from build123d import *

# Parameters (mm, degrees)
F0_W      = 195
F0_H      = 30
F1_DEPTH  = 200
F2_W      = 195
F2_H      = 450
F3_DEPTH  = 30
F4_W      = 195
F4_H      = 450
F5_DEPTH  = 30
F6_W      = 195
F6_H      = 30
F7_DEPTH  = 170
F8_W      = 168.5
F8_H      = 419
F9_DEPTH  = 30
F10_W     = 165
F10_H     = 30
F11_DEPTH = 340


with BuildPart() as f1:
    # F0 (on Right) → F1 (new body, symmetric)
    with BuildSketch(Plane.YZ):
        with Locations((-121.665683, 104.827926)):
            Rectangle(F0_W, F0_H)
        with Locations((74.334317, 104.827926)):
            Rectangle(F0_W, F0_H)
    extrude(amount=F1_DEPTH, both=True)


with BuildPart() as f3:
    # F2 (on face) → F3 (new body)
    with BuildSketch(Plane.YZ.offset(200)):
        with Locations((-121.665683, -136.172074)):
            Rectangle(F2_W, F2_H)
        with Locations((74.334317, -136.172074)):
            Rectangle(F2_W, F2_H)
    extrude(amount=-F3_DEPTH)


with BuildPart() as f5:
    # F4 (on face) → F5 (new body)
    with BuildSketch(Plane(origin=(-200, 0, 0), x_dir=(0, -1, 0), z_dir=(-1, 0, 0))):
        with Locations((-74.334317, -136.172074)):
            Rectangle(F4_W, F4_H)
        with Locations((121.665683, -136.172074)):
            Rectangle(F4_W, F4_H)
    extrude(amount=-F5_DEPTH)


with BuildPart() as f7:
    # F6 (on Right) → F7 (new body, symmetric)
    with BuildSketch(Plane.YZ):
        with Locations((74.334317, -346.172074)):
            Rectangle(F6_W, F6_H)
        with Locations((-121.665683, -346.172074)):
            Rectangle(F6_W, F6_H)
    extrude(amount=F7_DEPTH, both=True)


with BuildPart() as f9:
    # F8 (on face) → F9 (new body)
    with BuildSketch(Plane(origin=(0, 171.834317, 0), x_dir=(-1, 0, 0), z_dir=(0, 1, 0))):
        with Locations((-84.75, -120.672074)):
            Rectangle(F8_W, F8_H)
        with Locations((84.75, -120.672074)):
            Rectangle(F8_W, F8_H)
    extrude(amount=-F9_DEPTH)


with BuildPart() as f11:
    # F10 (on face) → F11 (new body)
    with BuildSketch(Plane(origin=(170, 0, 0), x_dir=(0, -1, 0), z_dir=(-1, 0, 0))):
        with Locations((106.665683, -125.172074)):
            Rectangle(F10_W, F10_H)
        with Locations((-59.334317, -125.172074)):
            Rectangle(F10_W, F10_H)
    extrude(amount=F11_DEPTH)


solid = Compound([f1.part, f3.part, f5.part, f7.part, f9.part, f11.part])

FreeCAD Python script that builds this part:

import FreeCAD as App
import Part
import Sketcher

V = App.Vector

doc = App.newDocument("Part")
params = doc.addObject("Spreadsheet::Sheet", "Params")
for row, (alias, value) in enumerate([
    ("sketch1_width", "195 mm"),
    ("sketch1_height", "30 mm"),
    ("pad1_length", "400 mm"),
    ("sketch2_width", "195 mm"),
    ("sketch2_height", "450 mm"),
    ("pad2_length", "30 mm"),
    ("sketch3_width", "195 mm"),
    ("sketch3_height", "450 mm"),
    ("pad3_length", "30 mm"),
    ("sketch4_width", "195 mm"),
    ("sketch4_height", "30 mm"),
    ("pad4_length", "340 mm"),
    ("sketch5_height", "419 mm"),
    ("sketch5_width", "168.5 mm"),
    ("pad5_length", "30 mm"),
    ("sketch6_width", "165 mm"),
    ("sketch6_height", "30 mm"),
    ("pad6_length", "340 mm"),
], start=1):
    params.set(f"A{row}", alias)
    params.set(f"B{row}", "=" + value)
    params.setAlias(f"B{row}", alias)

body = doc.addObject("PartDesign::Body", "Body")
body.AllowCompound = True

# Sketch on YZ plane
sketch1 = body.newObject("Sketcher::SketchObject", "Sketch")
sketch1.AttachmentSupport = (doc.getObject("YZ_Plane"), [""])
sketch1.MapMode = "FlatFace"
sketch1.addGeometry(Part.LineSegment(V(-219, 120, 0), V(-219, 90, 0)), False)
sketch1.addGeometry(Part.LineSegment(V(-219, 90, 0), V(-24, 90, 0)), False)
sketch1.addGeometry(Part.LineSegment(V(-24, 90, 0), V(-24, 120, 0)), False)
sketch1.addGeometry(Part.LineSegment(V(-24, 120, 0), V(-219, 120, 0)), False)
sketch1.addGeometry(Part.LineSegment(V(-23, 120, 0), V(-23, 90, 0)), False)
sketch1.addGeometry(Part.LineSegment(V(-23, 90, 0), V(172, 90, 0)), False)
sketch1.addGeometry(Part.LineSegment(V(172, 90, 0), V(172, 120, 0)), False)
sketch1.addGeometry(Part.LineSegment(V(172, 120, 0), V(-23, 120, 0)), False)
sketch1.addConstraint(Sketcher.Constraint("Coincident", 0, 2, 1, 1))
sketch1.addConstraint(Sketcher.Constraint("Coincident", 1, 2, 2, 1))
sketch1.addConstraint(Sketcher.Constraint("Coincident", 2, 2, 3, 1))
sketch1.addConstraint(Sketcher.Constraint("Coincident", 3, 2, 0, 1))
sketch1.addConstraint(Sketcher.Constraint("Coincident", 4, 2, 5, 1))
sketch1.addConstraint(Sketcher.Constraint("Coincident", 5, 2, 6, 1))
sketch1.addConstraint(Sketcher.Constraint("Coincident", 6, 2, 7, 1))
sketch1.addConstraint(Sketcher.Constraint("Coincident", 7, 2, 4, 1))
sketch1.addConstraint(Sketcher.Constraint("Vertical", 0))
sketch1.addConstraint(Sketcher.Constraint("Horizontal", 1))
sketch1.addConstraint(Sketcher.Constraint("Vertical", 2))
sketch1.addConstraint(Sketcher.Constraint("Horizontal", 3))
sketch1.addConstraint(Sketcher.Constraint("Vertical", 4))
sketch1.addConstraint(Sketcher.Constraint("Horizontal", 5))
sketch1.addConstraint(Sketcher.Constraint("Vertical", 6))
sketch1.addConstraint(Sketcher.Constraint("Horizontal", 7))
sketch1.addConstraint(Sketcher.Constraint("Horizontal", 1, 2, 4, 2))
sketch1.addConstraint(Sketcher.Constraint("Horizontal", 3, 2, 6, 2))
sketch1.addConstraint(Sketcher.Constraint("Equal", 3, 5))
sketch1.addConstraint(Sketcher.Constraint("DistanceX", 1, 1, 1, 2, 195.0))
sketch1.addConstraint(Sketcher.Constraint("DistanceY", 0, 2, 0, 1, 30.0))
sketch1.addConstraint(Sketcher.Constraint("DistanceX", 1, 2, 4, 2, 1.0))
sketch1.addConstraint(Sketcher.Constraint("DistanceX", 0, 2, -1, 1, 219.165683))
sketch1.addConstraint(Sketcher.Constraint("DistanceY", -1, 1, 0, 2, 89.827926))
sketch1.setExpression("Constraints[19]", "Params.sketch1_width")
sketch1.setExpression("Constraints[20]", "Params.sketch1_height")
pad1 = body.newObject("PartDesign::Pad", "Pad")
pad1.Profile = sketch1
pad1.setExpression("Length", "Params.pad1_length")
pad1.Midplane = True
body2 = doc.addObject("PartDesign::Body", "Body001")
body2.AllowCompound = True

# Sketch on YZ plane
sketch2 = body2.newObject("Sketcher::SketchObject", "Sketch001")
sketch2.AttachmentSupport = (doc.getObject("YZ_Plane001"), [""])
sketch2.MapMode = "FlatFace"
sketch2.AttachmentOffset = App.Placement(V(0, 0, 200), App.Rotation())
sketch2.addGeometry(Part.LineSegment(V(-219, 89, 0), V(-219, -361, 0)), False)
sketch2.addGeometry(Part.LineSegment(V(-219, -361, 0), V(-24, -361, 0)), False)
sketch2.addGeometry(Part.LineSegment(V(-24, -361, 0), V(-24, 89, 0)), False)
sketch2.addGeometry(Part.LineSegment(V(-24, 89, 0), V(-219, 89, 0)), False)
sketch2.addGeometry(Part.LineSegment(V(-23, 89, 0), V(-23, -361, 0)), False)
sketch2.addGeometry(Part.LineSegment(V(-23, -361, 0), V(172, -361, 0)), False)
sketch2.addGeometry(Part.LineSegment(V(172, -361, 0), V(172, 89, 0)), False)
sketch2.addGeometry(Part.LineSegment(V(172, 89, 0), V(-23, 89, 0)), False)
sketch2.addConstraint(Sketcher.Constraint("Coincident", 0, 2, 1, 1))
sketch2.addConstraint(Sketcher.Constraint("Coincident", 1, 2, 2, 1))
sketch2.addConstraint(Sketcher.Constraint("Coincident", 2, 2, 3, 1))
sketch2.addConstraint(Sketcher.Constraint("Coincident", 3, 2, 0, 1))
sketch2.addConstraint(Sketcher.Constraint("Coincident", 4, 2, 5, 1))
sketch2.addConstraint(Sketcher.Constraint("Coincident", 5, 2, 6, 1))
sketch2.addConstraint(Sketcher.Constraint("Coincident", 6, 2, 7, 1))
sketch2.addConstraint(Sketcher.Constraint("Coincident", 7, 2, 4, 1))
sketch2.addConstraint(Sketcher.Constraint("Vertical", 0))
sketch2.addConstraint(Sketcher.Constraint("Horizontal", 1))
sketch2.addConstraint(Sketcher.Constraint("Vertical", 2))
sketch2.addConstraint(Sketcher.Constraint("Horizontal", 3))
sketch2.addConstraint(Sketcher.Constraint("Vertical", 4))
sketch2.addConstraint(Sketcher.Constraint("Horizontal", 5))
sketch2.addConstraint(Sketcher.Constraint("Vertical", 6))
sketch2.addConstraint(Sketcher.Constraint("Horizontal", 7))
sketch2.addConstraint(Sketcher.Constraint("Horizontal", 1, 2, 4, 2))
sketch2.addConstraint(Sketcher.Constraint("Horizontal", 3, 2, 6, 2))
sketch2.addConstraint(Sketcher.Constraint("Equal", 3, 5))
sketch2.addConstraint(Sketcher.Constraint("DistanceX", 1, 1, 1, 2, 195.0))
sketch2.addConstraint(Sketcher.Constraint("DistanceY", 0, 2, 0, 1, 450.0))
sketch2.addConstraint(Sketcher.Constraint("DistanceX", 1, 2, 4, 2, 1.0))
sketch2.addConstraint(Sketcher.Constraint("DistanceX", 0, 2, -1, 1, 219.165683))
sketch2.addConstraint(Sketcher.Constraint("DistanceY", 0, 2, -1, 1, 361.172074))
sketch2.setExpression("Constraints[19]", "Params.sketch2_width")
sketch2.setExpression("Constraints[20]", "Params.sketch2_height")
pad2 = body2.newObject("PartDesign::Pad", "Pad001")
pad2.Profile = sketch2
pad2.setExpression("Length", "Params.pad2_length")
pad2.Reversed = True
body3 = doc.addObject("PartDesign::Body", "Body002")
body3.AllowCompound = True

# Sketch on YZ plane
sketch3 = body3.newObject("Sketcher::SketchObject", "Sketch002")
sketch3.AttachmentSupport = (doc.getObject("YZ_Plane002"), [""])
sketch3.MapMode = "FlatFace"
sketch3.AttachmentOffset = App.Placement(V(0, 0, -200), App.Rotation())
sketch3.addGeometry(Part.LineSegment(V(172, 89, 0), V(172, -361, 0)), False)
sketch3.addGeometry(Part.LineSegment(V(172, -361, 0), V(-23, -361, 0)), False)
sketch3.addGeometry(Part.LineSegment(V(-23, -361, 0), V(-23, 89, 0)), False)
sketch3.addGeometry(Part.LineSegment(V(-23, 89, 0), V(172, 89, 0)), False)
sketch3.addGeometry(Part.LineSegment(V(-24, 89, 0), V(-24, -361, 0)), False)
sketch3.addGeometry(Part.LineSegment(V(-24, -361, 0), V(-219, -361, 0)), False)
sketch3.addGeometry(Part.LineSegment(V(-219, -361, 0), V(-219, 89, 0)), False)
sketch3.addGeometry(Part.LineSegment(V(-219, 89, 0), V(-24, 89, 0)), False)
sketch3.addConstraint(Sketcher.Constraint("Coincident", 0, 2, 1, 1))
sketch3.addConstraint(Sketcher.Constraint("Coincident", 1, 2, 2, 1))
sketch3.addConstraint(Sketcher.Constraint("Coincident", 2, 2, 3, 1))
sketch3.addConstraint(Sketcher.Constraint("Coincident", 3, 2, 0, 1))
sketch3.addConstraint(Sketcher.Constraint("Coincident", 4, 2, 5, 1))
sketch3.addConstraint(Sketcher.Constraint("Coincident", 5, 2, 6, 1))
sketch3.addConstraint(Sketcher.Constraint("Coincident", 6, 2, 7, 1))
sketch3.addConstraint(Sketcher.Constraint("Coincident", 7, 2, 4, 1))
sketch3.addConstraint(Sketcher.Constraint("Vertical", 0))
sketch3.addConstraint(Sketcher.Constraint("Horizontal", 1))
sketch3.addConstraint(Sketcher.Constraint("Vertical", 2))
sketch3.addConstraint(Sketcher.Constraint("Horizontal", 3))
sketch3.addConstraint(Sketcher.Constraint("Vertical", 4))
sketch3.addConstraint(Sketcher.Constraint("Horizontal", 5))
sketch3.addConstraint(Sketcher.Constraint("Vertical", 6))
sketch3.addConstraint(Sketcher.Constraint("Horizontal", 7))
sketch3.addConstraint(Sketcher.Constraint("Horizontal", 1, 2, 4, 2))
sketch3.addConstraint(Sketcher.Constraint("Horizontal", 3, 2, 6, 2))
sketch3.addConstraint(Sketcher.Constraint("Equal", 3, 5))
sketch3.addConstraint(Sketcher.Constraint("DistanceX", 1, 2, 1, 1, 195.0))
sketch3.addConstraint(Sketcher.Constraint("DistanceY", 0, 2, 0, 1, 450.0))
sketch3.addConstraint(Sketcher.Constraint("DistanceX", 4, 2, 1, 2, 1.0))
sketch3.addConstraint(Sketcher.Constraint("DistanceX", -1, 1, 0, 2, 171.834317))
sketch3.addConstraint(Sketcher.Constraint("DistanceY", 0, 2, -1, 1, 361.172074))
sketch3.setExpression("Constraints[19]", "Params.sketch3_width")
sketch3.setExpression("Constraints[20]", "Params.sketch3_height")
pad3 = body3.newObject("PartDesign::Pad", "Pad002")
pad3.Profile = sketch3
pad3.setExpression("Length", "Params.pad3_length")
body4 = doc.addObject("PartDesign::Body", "Body003")
body4.AllowCompound = True

# Sketch on YZ plane
sketch4 = body4.newObject("Sketcher::SketchObject", "Sketch003")
sketch4.AttachmentSupport = (doc.getObject("YZ_Plane003"), [""])
sketch4.MapMode = "FlatFace"
sketch4.addGeometry(Part.LineSegment(V(-23, -331, 0), V(-23, -361, 0)), False)
sketch4.addGeometry(Part.LineSegment(V(-23, -361, 0), V(172, -361, 0)), False)
sketch4.addGeometry(Part.LineSegment(V(172, -361, 0), V(172, -331, 0)), False)
sketch4.addGeometry(Part.LineSegment(V(172, -331, 0), V(-23, -331, 0)), False)
sketch4.addGeometry(Part.LineSegment(V(-219, -331, 0), V(-219, -361, 0)), False)
sketch4.addGeometry(Part.LineSegment(V(-219, -361, 0), V(-24, -361, 0)), False)
sketch4.addGeometry(Part.LineSegment(V(-24, -361, 0), V(-24, -331, 0)), False)
sketch4.addGeometry(Part.LineSegment(V(-24, -331, 0), V(-219, -331, 0)), False)
sketch4.addConstraint(Sketcher.Constraint("Coincident", 0, 2, 1, 1))
sketch4.addConstraint(Sketcher.Constraint("Coincident", 1, 2, 2, 1))
sketch4.addConstraint(Sketcher.Constraint("Coincident", 2, 2, 3, 1))
sketch4.addConstraint(Sketcher.Constraint("Coincident", 3, 2, 0, 1))
sketch4.addConstraint(Sketcher.Constraint("Coincident", 4, 2, 5, 1))
sketch4.addConstraint(Sketcher.Constraint("Coincident", 5, 2, 6, 1))
sketch4.addConstraint(Sketcher.Constraint("Coincident", 6, 2, 7, 1))
sketch4.addConstraint(Sketcher.Constraint("Coincident", 7, 2, 4, 1))
sketch4.addConstraint(Sketcher.Constraint("Vertical", 0))
sketch4.addConstraint(Sketcher.Constraint("Horizontal", 1))
sketch4.addConstraint(Sketcher.Constraint("Vertical", 2))
sketch4.addConstraint(Sketcher.Constraint("Horizontal", 3))
sketch4.addConstraint(Sketcher.Constraint("Vertical", 4))
sketch4.addConstraint(Sketcher.Constraint("Horizontal", 5))
sketch4.addConstraint(Sketcher.Constraint("Vertical", 6))
sketch4.addConstraint(Sketcher.Constraint("Horizontal", 7))
sketch4.addConstraint(Sketcher.Constraint("Horizontal", 1, 2, 4, 2))
sketch4.addConstraint(Sketcher.Constraint("Horizontal", 3, 2, 6, 2))
sketch4.addConstraint(Sketcher.Constraint("Equal", 3, 5))
sketch4.addConstraint(Sketcher.Constraint("DistanceX", 1, 1, 1, 2, 195.0))
sketch4.addConstraint(Sketcher.Constraint("DistanceY", 0, 2, 0, 1, 30.0))
sketch4.addConstraint(Sketcher.Constraint("DistanceX", 4, 2, 0, 2, 196.0))
sketch4.addConstraint(Sketcher.Constraint("DistanceX", 0, 2, -1, 1, 23.165683))
sketch4.addConstraint(Sketcher.Constraint("DistanceY", 0, 2, -1, 1, 361.172074))
sketch4.setExpression("Constraints[19]", "Params.sketch4_width")
sketch4.setExpression("Constraints[20]", "Params.sketch4_height")
pad4 = body4.newObject("PartDesign::Pad", "Pad003")
pad4.Profile = sketch4
pad4.setExpression("Length", "Params.pad4_length")
pad4.Midplane = True
body5 = doc.addObject("PartDesign::Body", "Body004")
body5.AllowCompound = True

# Sketch on XZ plane
sketch5 = body5.newObject("Sketcher::SketchObject", "Sketch004")
sketch5.AttachmentSupport = (doc.getObject("XZ_Plane004"), [""])
sketch5.MapMode = "FlatFace"
sketch5.AttachmentOffset = App.Placement(V(0, 0, -171.834317), App.Rotation())
sketch5.addGeometry(Part.LineSegment(V(169, 88.827926, 0), V(169, -330.172074, 0)), False)
sketch5.addGeometry(Part.LineSegment(V(169, -330.172074, 0), V(0.5, -330.172074, 0)), False)
sketch5.addGeometry(Part.LineSegment(V(0.5, -330.172074, 0), V(0.5, 88.827926, 0)), False)
sketch5.addGeometry(Part.LineSegment(V(0.5, 88.827926, 0), V(169, 88.827926, 0)), False)
sketch5.addGeometry(Part.LineSegment(V(-0.5, 88.827926, 0), V(-0.5, -330.172074, 0)), False)
sketch5.addGeometry(Part.LineSegment(V(-0.5, -330.172074, 0), V(-169, -330.172074, 0)), False)
sketch5.addGeometry(Part.LineSegment(V(-169, -330.172074, 0), V(-169, 88.827926, 0)), False)
sketch5.addGeometry(Part.LineSegment(V(-169, 88.827926, 0), V(-0.5, 88.827926, 0)), False)
sketch5.addConstraint(Sketcher.Constraint("Coincident", 0, 2, 1, 1))
sketch5.addConstraint(Sketcher.Constraint("Coincident", 1, 2, 2, 1))
sketch5.addConstraint(Sketcher.Constraint("Coincident", 2, 2, 3, 1))
sketch5.addConstraint(Sketcher.Constraint("Coincident", 3, 2, 0, 1))
sketch5.addConstraint(Sketcher.Constraint("Coincident", 4, 2, 5, 1))
sketch5.addConstraint(Sketcher.Constraint("Coincident", 5, 2, 6, 1))
sketch5.addConstraint(Sketcher.Constraint("Coincident", 6, 2, 7, 1))
sketch5.addConstraint(Sketcher.Constraint("Coincident", 7, 2, 4, 1))
sketch5.addConstraint(Sketcher.Constraint("Vertical", 0))
sketch5.addConstraint(Sketcher.Constraint("Horizontal", 1))
sketch5.addConstraint(Sketcher.Constraint("Vertical", 2))
sketch5.addConstraint(Sketcher.Constraint("Horizontal", 3))
sketch5.addConstraint(Sketcher.Constraint("Vertical", 4))
sketch5.addConstraint(Sketcher.Constraint("Horizontal", 5))
sketch5.addConstraint(Sketcher.Constraint("Vertical", 6))
sketch5.addConstraint(Sketcher.Constraint("Horizontal", 7))
sketch5.addConstraint(Sketcher.Constraint("Symmetric", 1, 2, 4, 2, -2))
sketch5.addConstraint(Sketcher.Constraint("Symmetric", 3, 2, 6, 2, -2))
sketch5.addConstraint(Sketcher.Constraint("DistanceY", 0, 2, 0, 1, 419.0))
sketch5.addConstraint(Sketcher.Constraint("DistanceX", 1, 2, 1, 1, 168.5))
sketch5.addConstraint(Sketcher.Constraint("DistanceX", -1, 1, 0, 2, 169.0))
sketch5.addConstraint(Sketcher.Constraint("DistanceY", 0, 2, -1, 1, 330.172074))
sketch5.setExpression("Constraints[18]", "Params.sketch5_height")
sketch5.setExpression("Constraints[19]", "Params.sketch5_width")
pad5 = body5.newObject("PartDesign::Pad", "Pad004")
pad5.Profile = sketch5
pad5.setExpression("Length", "Params.pad5_length")
body6 = doc.addObject("PartDesign::Body", "Body005")
body6.AllowCompound = True

# Sketch on YZ plane
sketch6 = body6.newObject("Sketcher::SketchObject", "Sketch005")
sketch6.AttachmentSupport = (doc.getObject("YZ_Plane005"), [""])
sketch6.MapMode = "FlatFace"
sketch6.AttachmentOffset = App.Placement(V(0, 0, 170), App.Rotation())
sketch6.addGeometry(Part.LineSegment(V(-24, -110, 0), V(-24, -140, 0)), False)
sketch6.addGeometry(Part.LineSegment(V(-24, -140, 0), V(-189, -140, 0)), False)
sketch6.addGeometry(Part.LineSegment(V(-189, -140, 0), V(-189, -110, 0)), False)
sketch6.addGeometry(Part.LineSegment(V(-189, -110, 0), V(-24, -110, 0)), False)
sketch6.addGeometry(Part.LineSegment(V(142, -110, 0), V(142, -140, 0)), False)
sketch6.addGeometry(Part.LineSegment(V(142, -140, 0), V(-23, -140, 0)), False)
sketch6.addGeometry(Part.LineSegment(V(-23, -140, 0), V(-23, -110, 0)), False)
sketch6.addGeometry(Part.LineSegment(V(-23, -110, 0), V(142, -110, 0)), False)
sketch6.addConstraint(Sketcher.Constraint("Coincident", 0, 2, 1, 1))
sketch6.addConstraint(Sketcher.Constraint("Coincident", 1, 2, 2, 1))
sketch6.addConstraint(Sketcher.Constraint("Coincident", 2, 2, 3, 1))
sketch6.addConstraint(Sketcher.Constraint("Coincident", 3, 2, 0, 1))
sketch6.addConstraint(Sketcher.Constraint("Coincident", 4, 2, 5, 1))
sketch6.addConstraint(Sketcher.Constraint("Coincident", 5, 2, 6, 1))
sketch6.addConstraint(Sketcher.Constraint("Coincident", 6, 2, 7, 1))
sketch6.addConstraint(Sketcher.Constraint("Coincident", 7, 2, 4, 1))
sketch6.addConstraint(Sketcher.Constraint("Vertical", 0))
sketch6.addConstraint(Sketcher.Constraint("Horizontal", 1))
sketch6.addConstraint(Sketcher.Constraint("Vertical", 2))
sketch6.addConstraint(Sketcher.Constraint("Horizontal", 3))
sketch6.addConstraint(Sketcher.Constraint("Vertical", 4))
sketch6.addConstraint(Sketcher.Constraint("Horizontal", 5))
sketch6.addConstraint(Sketcher.Constraint("Vertical", 6))
sketch6.addConstraint(Sketcher.Constraint("Horizontal", 7))
sketch6.addConstraint(Sketcher.Constraint("Horizontal", 1, 2, 4, 2))
sketch6.addConstraint(Sketcher.Constraint("Horizontal", 3, 2, 6, 2))
sketch6.addConstraint(Sketcher.Constraint("Equal", 3, 5))
sketch6.addConstraint(Sketcher.Constraint("DistanceX", 1, 2, 1, 1, 165.0))
sketch6.addConstraint(Sketcher.Constraint("DistanceY", 0, 2, 0, 1, 30.0))
sketch6.addConstraint(Sketcher.Constraint("DistanceX", 0, 2, 4, 2, 166.0))
sketch6.addConstraint(Sketcher.Constraint("DistanceX", 0, 2, -1, 1, 24.165683))
sketch6.addConstraint(Sketcher.Constraint("DistanceY", 0, 2, -1, 1, 140.172074))
sketch6.setExpression("Constraints[19]", "Params.sketch6_width")
sketch6.setExpression("Constraints[20]", "Params.sketch6_height")
pad6 = body6.newObject("PartDesign::Pad", "Pad005")
pad6.Profile = sketch6
pad6.setExpression("Length", "Params.pad6_length")
pad6.Reversed = True

doc.recompute()
